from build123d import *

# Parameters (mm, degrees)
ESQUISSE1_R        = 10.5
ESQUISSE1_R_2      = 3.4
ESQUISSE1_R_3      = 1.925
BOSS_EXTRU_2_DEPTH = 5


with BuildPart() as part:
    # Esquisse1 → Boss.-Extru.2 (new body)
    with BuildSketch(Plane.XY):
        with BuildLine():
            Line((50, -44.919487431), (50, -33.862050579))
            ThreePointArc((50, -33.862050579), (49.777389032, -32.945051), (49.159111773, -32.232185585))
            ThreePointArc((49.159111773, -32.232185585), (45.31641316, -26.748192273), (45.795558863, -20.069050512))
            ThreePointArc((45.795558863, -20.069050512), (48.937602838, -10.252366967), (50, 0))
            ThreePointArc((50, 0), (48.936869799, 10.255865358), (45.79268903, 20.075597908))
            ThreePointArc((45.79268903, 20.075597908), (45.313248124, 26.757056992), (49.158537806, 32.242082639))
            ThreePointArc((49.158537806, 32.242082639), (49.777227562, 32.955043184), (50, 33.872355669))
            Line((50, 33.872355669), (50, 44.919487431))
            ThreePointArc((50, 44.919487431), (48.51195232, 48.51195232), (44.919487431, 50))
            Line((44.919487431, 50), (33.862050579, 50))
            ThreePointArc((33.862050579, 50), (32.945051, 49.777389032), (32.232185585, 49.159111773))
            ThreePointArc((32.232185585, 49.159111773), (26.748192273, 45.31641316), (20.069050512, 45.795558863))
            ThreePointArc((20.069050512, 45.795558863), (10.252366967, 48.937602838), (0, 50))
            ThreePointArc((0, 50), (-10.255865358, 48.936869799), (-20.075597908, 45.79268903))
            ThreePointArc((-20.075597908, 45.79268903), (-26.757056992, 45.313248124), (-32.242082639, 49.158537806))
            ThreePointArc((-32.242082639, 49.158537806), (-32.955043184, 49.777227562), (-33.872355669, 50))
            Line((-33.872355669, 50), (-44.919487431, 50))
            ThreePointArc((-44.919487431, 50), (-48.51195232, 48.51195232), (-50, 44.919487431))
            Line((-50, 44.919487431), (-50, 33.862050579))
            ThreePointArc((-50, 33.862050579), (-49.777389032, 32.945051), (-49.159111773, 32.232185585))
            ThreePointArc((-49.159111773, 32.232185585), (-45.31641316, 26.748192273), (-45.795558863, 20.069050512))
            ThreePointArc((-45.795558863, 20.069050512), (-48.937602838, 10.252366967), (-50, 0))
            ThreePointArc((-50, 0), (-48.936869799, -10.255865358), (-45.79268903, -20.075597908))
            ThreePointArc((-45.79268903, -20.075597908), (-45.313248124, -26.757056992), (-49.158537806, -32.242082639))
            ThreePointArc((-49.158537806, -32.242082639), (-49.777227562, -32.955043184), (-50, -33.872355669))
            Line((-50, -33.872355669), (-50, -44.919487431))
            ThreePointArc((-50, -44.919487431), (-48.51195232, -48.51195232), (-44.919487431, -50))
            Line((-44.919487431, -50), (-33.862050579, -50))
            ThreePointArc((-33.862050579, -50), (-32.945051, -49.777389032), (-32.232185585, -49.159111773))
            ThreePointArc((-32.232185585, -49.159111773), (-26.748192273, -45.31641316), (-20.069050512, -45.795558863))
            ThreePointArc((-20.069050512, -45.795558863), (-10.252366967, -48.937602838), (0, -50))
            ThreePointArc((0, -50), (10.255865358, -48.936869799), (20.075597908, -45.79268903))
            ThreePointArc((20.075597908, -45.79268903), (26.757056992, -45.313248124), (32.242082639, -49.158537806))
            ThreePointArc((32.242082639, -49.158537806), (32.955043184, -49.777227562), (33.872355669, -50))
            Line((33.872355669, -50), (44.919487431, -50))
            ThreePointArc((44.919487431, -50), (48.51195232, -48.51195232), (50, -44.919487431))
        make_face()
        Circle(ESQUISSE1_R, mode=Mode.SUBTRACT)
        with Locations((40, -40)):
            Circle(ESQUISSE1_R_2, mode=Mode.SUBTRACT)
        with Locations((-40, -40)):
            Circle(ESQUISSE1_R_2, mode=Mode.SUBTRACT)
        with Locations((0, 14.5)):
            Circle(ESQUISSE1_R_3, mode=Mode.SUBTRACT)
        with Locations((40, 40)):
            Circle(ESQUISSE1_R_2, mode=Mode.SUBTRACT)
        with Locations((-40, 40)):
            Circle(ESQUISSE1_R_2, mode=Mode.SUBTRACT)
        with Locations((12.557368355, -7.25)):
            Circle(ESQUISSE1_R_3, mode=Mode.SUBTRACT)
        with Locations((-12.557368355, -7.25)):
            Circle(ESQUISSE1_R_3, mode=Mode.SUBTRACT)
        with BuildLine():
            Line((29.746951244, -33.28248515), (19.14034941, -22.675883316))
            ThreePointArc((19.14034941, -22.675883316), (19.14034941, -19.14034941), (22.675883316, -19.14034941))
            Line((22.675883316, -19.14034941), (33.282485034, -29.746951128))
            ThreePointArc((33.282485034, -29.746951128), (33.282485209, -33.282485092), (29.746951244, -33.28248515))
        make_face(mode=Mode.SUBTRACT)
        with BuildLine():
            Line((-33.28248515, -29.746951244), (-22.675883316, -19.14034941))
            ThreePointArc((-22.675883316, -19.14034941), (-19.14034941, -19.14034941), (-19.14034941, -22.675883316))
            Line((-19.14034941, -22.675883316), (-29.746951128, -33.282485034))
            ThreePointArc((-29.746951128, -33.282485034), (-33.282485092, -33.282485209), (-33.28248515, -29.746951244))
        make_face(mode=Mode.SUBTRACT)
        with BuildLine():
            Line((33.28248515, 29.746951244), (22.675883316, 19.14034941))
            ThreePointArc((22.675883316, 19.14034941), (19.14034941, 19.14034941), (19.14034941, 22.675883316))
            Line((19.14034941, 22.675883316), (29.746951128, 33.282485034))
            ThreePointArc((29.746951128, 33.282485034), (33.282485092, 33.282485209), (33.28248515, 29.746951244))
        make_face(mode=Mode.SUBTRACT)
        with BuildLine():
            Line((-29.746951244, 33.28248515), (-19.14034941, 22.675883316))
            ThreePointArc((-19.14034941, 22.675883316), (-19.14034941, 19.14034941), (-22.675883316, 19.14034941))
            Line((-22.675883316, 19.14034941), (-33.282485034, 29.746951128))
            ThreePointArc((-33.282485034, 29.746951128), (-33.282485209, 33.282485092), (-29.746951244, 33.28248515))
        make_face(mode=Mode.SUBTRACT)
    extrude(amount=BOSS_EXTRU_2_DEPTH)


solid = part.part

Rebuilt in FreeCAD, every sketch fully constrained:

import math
import FreeCAD as App
import Part
import Sketcher

V = App.Vector

doc = App.newDocument("Part")
body = doc.addObject("PartDesign::Body", "Body")

sketch1 = doc.addObject("Sketcher::SketchObject", "Sketch")
body.addObject(sketch1)
sketch1.AttachmentSupport = (doc.XY_Plane, [""])
sketch1.MapMode = "FlatFace"
sketch1.addGeometry(Part.LineSegment(V(50, -44.9, 0), V(50, -33.9, 0)), False)
sketch1.addGeometry(Part.ArcOfCircle(Part.Circle(V(48, -33.9, 0), V(0, 0, 1), 2), math.radians(0), math.radians(55)), False)
sketch1.addGeometry(Part.ArcOfCircle(Part.Circle(V(55, -24.1, 0), V(0, 0, 1), 10), math.radians(156), math.radians(235)), False)
sketch1.addGeometry(Part.ArcOfCircle(Part.Circle(V(0, 0, 0), V(0, 0, 1), 50), math.radians(-24), math.radians(0)), False)
sketch1.addGeometry(Part.ArcOfCircle(Part.Circle(V(0, 0, 0), V(0, 0, 1), 50), math.radians(0), math.radians(24)), False)
sketch1.addGeometry(Part.ArcOfCircle(Part.Circle(V(55, 24.1, 0), V(0, 0, 1), 10), math.radians(125), math.radians(204)), False)
sketch1.addGeometry(Part.ArcOfCircle(Part.Circle(V(48, 33.9, 0), V(0, 0, 1), 2), math.radians(-55), math.radians(0)), False)
sketch1.addGeometry(Part.LineSegment(V(50, 33.9, 0), V(50, 44.9, 0)), False)
sketch1.addGeometry(Part.ArcOfCircle(Part.Circle(V(44.9, 44.9, 0), V(0, 0, 1), 5.1), math.radians(0), math.radians(90)), False)
sketch1.addGeometry(Part.LineSegment(V(44.9, 50, 0), V(33.9, 50, 0)), False)
sketch1.addGeometry(Part.ArcOfCircle(Part.Circle(V(33.9, 48, 0), V(0, 0, 1), 2), math.radians(90), math.radians(145)), False)
sketch1.addGeometry(Part.ArcOfCircle(Part.Circle(V(24.1, 55, 0), V(0, 0, 1), 10), math.radians(-114), math.radians(-35)), False)
sketch1.addGeometry(Part.ArcOfCircle(Part.Circle(V(0, 0, 0), V(0, 0, 1), 50), math.radians(66), math.radians(90)), False)
sketch1.addGeometry(Part.ArcOfCircle(Part.Circle(V(0, 0, 0), V(0, 0, 1), 50), math.radians(90), math.radians(114)), False)
sketch1.addGeometry(Part.ArcOfCircle(Part.Circle(V(-24.1, 55, 0), V(0, 0, 1), 10), math.radians(-145), math.radians(-66)), False)
sketch1.addGeometry(Part.ArcOfCircle(Part.Circle(V(-33.9, 48, 0), V(0, 0, 1), 2), math.radians(35), math.radians(90)), False)
sketch1.addGeometry(Part.LineSegment(V(-33.9, 50, 0), V(-44.9, 50, 0)), False)
sketch1.addGeometry(Part.ArcOfCircle(Part.Circle(V(-44.9, 44.9, 0), V(0, 0, 1), 5.1), math.radians(90), math.radians(180)), False)
sketch1.addGeometry(Part.LineSegment(V(-50, 44.9, 0), V(-50, 33.9, 0)), False)
sketch1.addGeometry(Part.ArcOfCircle(Part.Circle(V(-48, 33.9, 0), V(0, 0, 1), 2), math.radians(-180), math.radians(-125)), False)
sketch1.addGeometry(Part.ArcOfCircle(Part.Circle(V(-55, 24.1, 0), V(0, 0, 1), 10), math.radians(-24), math.radians(55)), False)
sketch1.addGeometry(Part.ArcOfCircle(Part.Circle(V(0, 0, 0), V(0, 0, 1), 50), math.radians(156), math.radians(180)), False)
sketch1.addGeometry(Part.ArcOfCircle(Part.Circle(V(0, 0, 0), V(0, 0, 1), 50), math.radians(-180), math.radians(-156)), False)
sketch1.addGeometry(Part.ArcOfCircle(Part.Circle(V(-55, -24.1, 0), V(0, 0, 1), 10), math.radians(-55), math.radians(24)), False)
sketch1.addGeometry(Part.ArcOfCircle(Part.Circle(V(-48, -33.9, 0), V(0, 0, 1), 2), math.radians(125), math.radians(180)), False)
sketch1.addGeometry(Part.LineSegment(V(-50, -33.9, 0), V(-50, -44.9, 0)), False)
sketch1.addGeometry(Part.ArcOfCircle(Part.Circle(V(-44.9, -44.9, 0), V(0, 0, 1), 5.1), math.radians(-180), math.radians(-90)), False)
sketch1.addGeometry(Part.LineSegment(V(-44.9, -50, 0), V(-33.9, -50, 0)), False)
sketch1.addGeometry(Part.ArcOfCircle(Part.Circle(V(-33.9, -48, 0), V(0, 0, 1), 2), math.radians(-90), math.radians(-35)), False)
sketch1.addGeometry(Part.ArcOfCircle(Part.Circle(V(-24.1, -55, 0), V(0, 0, 1), 10), math.radians(66), math.radians(145)), False)
sketch1.addGeometry(Part.ArcOfCircle(Part.Circle(V(0, 0, 0), V(0, 0, 1), 50), math.radians(-114), math.radians(-90)), False)
sketch1.addGeometry(Part.ArcOfCircle(Part.Circle(V(0, 0, 0), V(0, 0, 1), 50), math.radians(-90), math.radians(-66)), False)
sketch1.addGeometry(Part.ArcOfCircle(Part.Circle(V(24.1, -55, 0), V(0, 0, 1), 10), math.radians(35), math.radians(114)), False)
sketch1.addGeometry(Part.ArcOfCircle(Part.Circle(V(33.9, -48, 0), V(0, 0, 1), 2), math.radians(-145), math.radians(-90)), False)
sketch1.addGeometry(Part.LineSegment(V(33.9, -50, 0), V(44.9, -50, 0)), False)
sketch1.addGeometry(Part.ArcOfCircle(Part.Circle(V(44.9, -44.9, 0), V(0, 0, 1), 5.1), math.radians(-90), math.radians(0)), False)
sketch1.addGeometry(Part.Circle(V(-40, -40, 0), V(0, 0, 1), 3.4), False)
sketch1.addGeometry(Part.ArcOfCircle(Part.Circle(V(-31.5, -31.5, 0), V(0, 0, 1), 2.5), math.radians(135), math.radians(315)), False)
sketch1.addGeometry(Part.LineSegment(V(-33.3, -29.7, 0), V(-22.7, -19.1, 0)), False)
sketch1.addGeometry(Part.ArcOfCircle(Part.Circle(V(-20.9, -20.9, 0), V(0, 0, 1), 2.5), math.radians(-45), math.radians(135)), False)
sketch1.addGeometry(Part.LineSegment(V(-19.1, -22.7, 0), V(-29.7, -33.3, 0)), False)
sketch1.addGeometry(Part.Circle(V(-12.6, -7.2, 0), V(0, 0, 1), 1.9), False)
sketch1.addGeometry(Part.Circle(V(40, -40, 0), V(0, 0, 1), 3.4), False)
sketch1.addGeometry(Part.ArcOfCircle(Part.Circle(V(31.5, -31.5, 0), V(0, 0, 1), 2.5), math.radians(-135), math.radians(45)), False)
sketch1.addGeometry(Part.LineSegment(V(29.7, -33.3, 0), V(19.1, -22.7, 0)), False)
sketch1.addGeometry(Part.ArcOfCircle(Part.Circle(V(20.9, -20.9, 0), V(0, 0, 1), 2.5), math.radians(45), math.radians(225)), False)
sketch1.addGeometry(Part.LineSegment(V(22.7, -19.1, 0), V(33.3, -29.7, 0)), False)
sketch1.addGeometry(Part.Circle(V(12.6, -7.2, 0), V(0, 0, 1), 1.9), False)
sketch1.addGeometry(Part.ArcOfCircle(Part.Circle(V(-31.5, 31.5, 0), V(0, 0, 1), 2.5), math.radians(45), math.radians(225)), False)
sketch1.addGeometry(Part.LineSegment(V(-29.7, 33.3, 0), V(-19.1, 22.7, 0)), False)
sketch1.addGeometry(Part.ArcOfCircle(Part.Circle(V(-20.9, 20.9, 0), V(0, 0, 1), 2.5), math.radians(-135), math.radians(45)), False)
sketch1.addGeometry(Part.LineSegment(V(-22.7, 19.1, 0), V(-33.3, 29.7, 0)), False)
sketch1.addGeometry(Part.Circle(V(-40, 40, 0), V(0, 0, 1), 3.4), False)
sketch1.addGeometry(Part.Circle(V(0, 0, 0), V(0, 0, 1), 10.5), False)
sketch1.addGeometry(Part.Circle(V(0, 14.5, 0), V(0, 0, 1), 1.9), False)
sketch1.addGeometry(Part.ArcOfCircle(Part.Circle(V(31.5, 31.5, 0), V(0, 0, 1), 2.5), math.radians(-45), math.radians(135)), False)
sketch1.addGeometry(Part.LineSegment(V(33.3, 29.7, 0), V(22.7, 19.1, 0)), False)
sketch1.addGeometry(Part.ArcOfCircle(Part.Circle(V(20.9, 20.9, 0), V(0, 0, 1), 2.5), math.radians(135), math.radians(315)), False)
sketch1.addGeometry(Part.LineSegment(V(19.1, 22.7, 0), V(29.7, 33.3, 0)), False)
sketch1.addGeometry(Part.Circle(V(40, 40, 0), V(0, 0, 1), 3.4), False)
sketch1.addConstraint(Sketcher.Constraint("Tangent", 0, 2, 1, 1))
sketch1.addConstraint(Sketcher.Constraint("Tangent", 1, 2, 2, 2))
sketch1.addConstraint(Sketcher.Constraint("Tangent", 2, 1, 3, 1))
sketch1.addConstraint(Sketcher.Constraint("Tangent", 3, 2, 4, 1))
sketch1.addConstraint(Sketcher.Constraint("Tangent", 4, 2, 5, 2))
sketch1.addConstraint(Sketcher.Constraint("Tangent", 5, 1, 6, 1))
sketch1.addConstraint(Sketcher.Constraint("Tangent", 6, 2, 7, 1))
sketch1.addConstraint(Sketcher.Constraint("Tangent", 7, 2, 8, 1))
sketch1.addConstraint(Sketcher.Constraint("Tangent", 8, 2, 9, 1))
sketch1.addConstraint(Sketcher.Constraint("Tangent", 9, 2, 10, 1))
sketch1.addConstraint(Sketcher.Constraint("Tangent", 10, 2, 11, 2))
sketch1.addConstraint(Sketcher.Constraint("Tangent", 11, 1, 12, 1))
sketch1.addConstraint(Sketcher.Constraint("Tangent", 12, 2, 13, 1))
sketch1.addConstraint(Sketcher.Constraint("Tangent", 13, 2, 14, 2))
sketch1.addConstraint(Sketcher.Constraint("Tangent", 14, 1, 15, 1))
sketch1.addConstraint(Sketcher.Constraint("Tangent", 15, 2, 16, 1))
sketch1.addConstraint(Sketcher.Constraint("Tangent", 16, 2, 17, 1))
sketch1.addConstraint(Sketcher.Constraint("Tangent", 17, 2, 18, 1))
sketch1.addConstraint(Sketcher.Constraint("Tangent", 18, 2, 19, 1))
sketch1.addConstraint(Sketcher.Constraint("Tangent", 19, 2, 20, 2))
sketch1.addConstraint(Sketcher.Constraint("Tangent", 20, 1, 21, 1))
sketch1.addConstraint(Sketcher.Constraint("Tangent", 21, 2, 22, 1))
sketch1.addConstraint(Sketcher.Constraint("Tangent", 22, 2, 23, 2))
sketch1.addConstraint(Sketcher.Constraint("Tangent", 23, 1, 24, 1))
sketch1.addConstraint(Sketcher.Constraint("Tangent", 24, 2, 25, 1))
sketch1.addConstraint(Sketcher.Constraint("Tangent", 25, 2, 26, 1))
sketch1.addConstraint(Sketcher.Constraint("Tangent", 26, 2, 27, 1))
sketch1.addConstraint(Sketcher.Constraint("Tangent", 27, 2, 28, 1))
sketch1.addConstraint(Sketcher.Constraint("Tangent", 28, 2, 29, 2))
sketch1.addConstraint(Sketcher.Constraint("Tangent", 29, 1, 30, 1))
sketch1.addConstraint(Sketcher.Constraint("Tangent", 30, 2, 31, 1))
sketch1.addConstraint(Sketcher.Constraint("Tangent", 31, 2, 32, 2))
sketch1.addConstraint(Sketcher.Constraint("Tangent", 32, 1, 33, 1))
sketch1.addConstraint(Sketcher.Constraint("Tangent", 33, 2, 34, 1))
sketch1.addConstraint(Sketcher.Constraint("Tangent", 34, 2, 35, 1))
sketch1.addConstraint(Sketcher.Constraint("Tangent", 35, 2, 0, 1))
sketch1.addConstraint(Sketcher.Constraint("Tangent", 37, 1, 38, 1))
sketch1.addConstraint(Sketcher.Constraint("Tangent", 38, 2, 39, 2))
sketch1.addConstraint(Sketcher.Constraint("Tangent", 39, 1, 40, 1))
sketch1.addConstraint(Sketcher.Constraint("Tangent", 40, 2, 37, 2))
sketch1.addConstraint(Sketcher.Constraint("Tangent", 43, 1, 44, 1))
sketch1.addConstraint(Sketcher.Constraint("Tangent", 44, 2, 45, 2))
sketch1.addConstraint(Sketcher.Constraint("Tangent", 45, 1, 46, 1))
sketch1.addConstraint(Sketcher.Constraint("Tangent", 46, 2, 43, 2))
sketch1.addConstraint(Sketcher.Constraint("Tangent", 48, 1, 49, 1))
sketch1.addConstraint(Sketcher.Constraint("Tangent", 49, 2, 50, 2))
sketch1.addConstraint(Sketcher.Constraint("Tangent", 50, 1, 51, 1))
sketch1.addConstraint(Sketcher.Constraint("Tangent", 51, 2, 48, 2))
sketch1.addConstraint(Sketcher.Constraint("Tangent", 55, 1, 56, 1))
sketch1.addConstraint(Sketcher.Constraint("Tangent", 56, 2, 57, 2))
sketch1.addConstraint(Sketcher.Constraint("Tangent", 57, 1, 58, 1))
sketch1.addConstraint(Sketcher.Constraint("Tangent", 58, 2, 55, 2))
sketch1.addConstraint(Sketcher.Constraint("Vertical", 0))
sketch1.addConstraint(Sketcher.Constraint("Vertical", 7))
sketch1.addConstraint(Sketcher.Constraint("Horizontal", 9))
sketch1.addConstraint(Sketcher.Constraint("Horizontal", 16))
sketch1.addConstraint(Sketcher.Constraint("Vertical", 18))
sketch1.addConstraint(Sketcher.Constraint("Vertical", 25))
sketch1.addConstraint(Sketcher.Constraint("Horizontal", 27))
sketch1.addConstraint(Sketcher.Constraint("Horizontal", 34))
sketch1.addConstraint(Sketcher.Constraint("Coincident", 3, 3, -1, 1))
sketch1.addConstraint(Sketcher.Constraint("Coincident", 12, 3, -1, 1))
sketch1.addConstraint(Sketcher.Constraint("Coincident", 21, 3, -1, 1))
sketch1.addConstraint(Sketcher.Constraint("Coincident", 30, 3, -1, 1))
sketch1.addConstraint(Sketcher.Constraint("Coincident", 53, 3, -1, 1))
sketch1.addConstraint(Sketcher.Constraint("Equal", 3, 4))
sketch1.addConstraint(Sketcher.Constraint("Equal", 2, 5))
sketch1.addConstraint(Sketcher.Constraint("Equal", 1, 6))
sketch1.addConstraint(Sketcher.Constraint("Equal", 6, 10))
sketch1.addConstraint(Sketcher.Constraint("Equal", 5, 11))
sketch1.addConstraint(Sketcher.Constraint("Equal", 4, 12))
sketch1.addConstraint(Sketcher.Constraint("Equal", 12, 13))
sketch1.addConstraint(Sketcher.Constraint("Equal", 11, 14))
sketch1.addConstraint(Sketcher.Constraint("Equal", 10, 15))
sketch1.addConstraint(Sketcher.Constraint("Equal", 8, 17))
sketch1.addConstraint(Sketcher.Constraint("Equal", 15, 19))
sketch1.addConstraint(Sketcher.Constraint("Equal", 14, 20))
sketch1.addConstraint(Sketcher.Constraint("Equal", 13, 21))
sketch1.addConstraint(Sketcher.Constraint("Equal", 21, 22))
sketch1.addConstraint(Sketcher.Constraint("Equal", 20, 23))
sketch1.addConstraint(Sketcher.Constraint("Equal", 19, 24))
sketch1.addConstraint(Sketcher.Constraint("Equal", 17, 26))
sketch1.addConstraint(Sketcher.Constraint("Equal", 24, 28))
sketch1.addConstraint(Sketcher.Constraint("Equal", 23, 29))
sketch1.addConstraint(Sketcher.Constraint("Equal", 22, 30))
sketch1.addConstraint(Sketcher.Constraint("Equal", 30, 31))
sketch1.addConstraint(Sketcher.Constraint("Equal", 29, 32))
sketch1.addConstraint(Sketcher.Constraint("Equal", 28, 33))
sketch1.addConstraint(Sketcher.Constraint("Equal", 26, 35))
sketch1.addConstraint(Sketcher.Constraint("Equal", 37, 39))
sketch1.addConstraint(Sketcher.Constraint("Equal", 36, 42))
sketch1.addConstraint(Sketcher.Constraint("Equal", 39, 43))
sketch1.addConstraint(Sketcher.Constraint("Equal", 43, 45))
sketch1.addConstraint(Sketcher.Constraint("Equal", 41, 47))
sketch1.addConstraint(Sketcher.Constraint("Equal", 45, 48))
sketch1.addConstraint(Sketcher.Constraint("Equal", 48, 50))
sketch1.addConstraint(Sketcher.Constraint("Equal", 42, 52))
sketch1.addConstraint(Sketcher.Constraint("Equal", 47, 54))
sketch1.addConstraint(Sketcher.Constraint("Equal", 50, 55))
sketch1.addConstraint(Sketcher.Constraint("Equal", 55, 57))
sketch1.addConstraint(Sketcher.Constraint("Equal", 52, 59))
sketch1.addConstraint(Sketcher.Constraint("Symmetric", 1, 3, 19, 3, -1, 1))
sketch1.addConstraint(Sketcher.Constraint("Symmetric", 6, 3, 24, 3, -1, 1))
sketch1.addConstraint(Sketcher.Constraint("Symmetric", 10, 3, 28, 3, -1, 1))
sketch1.addConstraint(Sketcher.Constraint("Symmetric", 15, 3, 33, 3, -1, 1))
sketch1.addConstraint(Sketcher.Constraint("Symmetric", 43, 3, 48, 3, -1, 1))
sketch1.addConstraint(Sketcher.Constraint("Symmetric", 45, 3, 50, 3, -1, 1))
sketch1.addConstraint(Sketcher.Constraint("Symmetric", 42, 3, 52, 3, -1, 1))
sketch1.addConstraint(Sketcher.Constraint("Symmetric", 37, 3, 55, 3, -1, 1))
sketch1.addConstraint(Sketcher.Constraint("Symmetric", 39, 3, 57, 3, -1, 1))
sketch1.addConstraint(Sketcher.Constraint("Symmetric", 36, 3, 59, 3, -1, 1))
sketch1.addConstraint(Sketcher.Constraint("Symmetric", 8, 3, 17, 3, -2))
sketch1.addConstraint(Sketcher.Constraint("Symmetric", 36, 3, 42, 3, -2))
sketch1.addConstraint(Sketcher.Constraint("Symmetric", 37, 3, 43, 3, -2))
sketch1.addConstraint(Sketcher.Constraint("Symmetric", 39, 3, 45, 3, -2))
sketch1.addConstraint(Sketcher.Constraint("Symmetric", 41, 3, 47, 3, -2))
sketch1.addConstraint(Sketcher.Constraint("PointOnObject", 54, 3, -2))
sketch1.addConstraint(Sketcher.Constraint("PointOnObject", 3, 2, -1))
sketch1.addConstraint(Sketcher.Constraint("PointOnObject", 12, 2, -2))
sketch1.addConstraint(Sketcher.Constraint("PointOnObject", 21, 2, -1))
sketch1.addConstraint(Sketcher.Constraint("PointOnObject", 30, 2, -2))
sketch1.addConstraint(Sketcher.Constraint("Perpendicular", 40, 44))
sketch1.addConstraint(Sketcher.Constraint("Horizontal", 9, 2, 12, 2))
sketch1.addConstraint(Sketcher.Constraint("Vertical", 0, 2, 3, 2))
sketch1.addConstraint(Sketcher.Constraint("Equal", 27, 0))
sketch1.addConstraint(Sketcher.Constraint("Equal", 34, 7))
sketch1.addConstraint(Sketcher.Constraint("Diameter", 53, 21.0))
sketch1.addConstraint(Sketcher.Constraint("Radius", 1, 2.0))
sketch1.addConstraint(Sketcher.Constraint("Radius", 2, 10.0))
sketch1.addConstraint(Sketcher.Constraint("Radius", 3, 50.0))
sketch1.addConstraint(Sketcher.Constraint("Diameter", 36, 6.8))
sketch1.addConstraint(Sketcher.Constraint("Radius", 37, 2.5))
sketch1.addConstraint(Sketcher.Constraint("Diameter", 41, 3.85))
sketch1.addConstraint(Sketcher.Constraint("Distance", 38, 15.0))
sketch1.addConstraint(Sketcher.Constraint("DistanceX", 36, 3, -1, 1, 40.0))
sketch1.addConstraint(Sketcher.Constraint("DistanceY", 36, 3, -1, 1, 40.0))
sketch1.addConstraint(Sketcher.Constraint("DistanceY", -1, 1, 54, 3, 14.5))
sketch1.addConstraint(Sketcher.Constraint("DistanceY", 41, 3, -1, 1, 7.25))
sketch1.addConstraint(Sketcher.Constraint("Radius", 8, 5.080513))
sketch1.addConstraint(Sketcher.Constraint("DistanceX", 16, 2, 16, 1, 11.047132))
sketch1.addConstraint(Sketcher.Constraint("DistanceX", 9, 2, 9, 1, 11.057437))
sketch1.addConstraint(Sketcher.Constraint("DistanceX", 37, 3, -1, 1, 31.514718))
sketch1.addConstraint(Sketcher.Constraint("DistanceY", 37, 3, -1, 1, 31.514718))
sketch1.addConstraint(Sketcher.Constraint("DistanceX", 41, 3, -1, 1, 12.557368))
pad1 = doc.addObject("PartDesign::Pad", "Pad")
body.addObject(pad1)
pad1.Profile = sketch1
pad1.Length = 5

doc.recompute()
